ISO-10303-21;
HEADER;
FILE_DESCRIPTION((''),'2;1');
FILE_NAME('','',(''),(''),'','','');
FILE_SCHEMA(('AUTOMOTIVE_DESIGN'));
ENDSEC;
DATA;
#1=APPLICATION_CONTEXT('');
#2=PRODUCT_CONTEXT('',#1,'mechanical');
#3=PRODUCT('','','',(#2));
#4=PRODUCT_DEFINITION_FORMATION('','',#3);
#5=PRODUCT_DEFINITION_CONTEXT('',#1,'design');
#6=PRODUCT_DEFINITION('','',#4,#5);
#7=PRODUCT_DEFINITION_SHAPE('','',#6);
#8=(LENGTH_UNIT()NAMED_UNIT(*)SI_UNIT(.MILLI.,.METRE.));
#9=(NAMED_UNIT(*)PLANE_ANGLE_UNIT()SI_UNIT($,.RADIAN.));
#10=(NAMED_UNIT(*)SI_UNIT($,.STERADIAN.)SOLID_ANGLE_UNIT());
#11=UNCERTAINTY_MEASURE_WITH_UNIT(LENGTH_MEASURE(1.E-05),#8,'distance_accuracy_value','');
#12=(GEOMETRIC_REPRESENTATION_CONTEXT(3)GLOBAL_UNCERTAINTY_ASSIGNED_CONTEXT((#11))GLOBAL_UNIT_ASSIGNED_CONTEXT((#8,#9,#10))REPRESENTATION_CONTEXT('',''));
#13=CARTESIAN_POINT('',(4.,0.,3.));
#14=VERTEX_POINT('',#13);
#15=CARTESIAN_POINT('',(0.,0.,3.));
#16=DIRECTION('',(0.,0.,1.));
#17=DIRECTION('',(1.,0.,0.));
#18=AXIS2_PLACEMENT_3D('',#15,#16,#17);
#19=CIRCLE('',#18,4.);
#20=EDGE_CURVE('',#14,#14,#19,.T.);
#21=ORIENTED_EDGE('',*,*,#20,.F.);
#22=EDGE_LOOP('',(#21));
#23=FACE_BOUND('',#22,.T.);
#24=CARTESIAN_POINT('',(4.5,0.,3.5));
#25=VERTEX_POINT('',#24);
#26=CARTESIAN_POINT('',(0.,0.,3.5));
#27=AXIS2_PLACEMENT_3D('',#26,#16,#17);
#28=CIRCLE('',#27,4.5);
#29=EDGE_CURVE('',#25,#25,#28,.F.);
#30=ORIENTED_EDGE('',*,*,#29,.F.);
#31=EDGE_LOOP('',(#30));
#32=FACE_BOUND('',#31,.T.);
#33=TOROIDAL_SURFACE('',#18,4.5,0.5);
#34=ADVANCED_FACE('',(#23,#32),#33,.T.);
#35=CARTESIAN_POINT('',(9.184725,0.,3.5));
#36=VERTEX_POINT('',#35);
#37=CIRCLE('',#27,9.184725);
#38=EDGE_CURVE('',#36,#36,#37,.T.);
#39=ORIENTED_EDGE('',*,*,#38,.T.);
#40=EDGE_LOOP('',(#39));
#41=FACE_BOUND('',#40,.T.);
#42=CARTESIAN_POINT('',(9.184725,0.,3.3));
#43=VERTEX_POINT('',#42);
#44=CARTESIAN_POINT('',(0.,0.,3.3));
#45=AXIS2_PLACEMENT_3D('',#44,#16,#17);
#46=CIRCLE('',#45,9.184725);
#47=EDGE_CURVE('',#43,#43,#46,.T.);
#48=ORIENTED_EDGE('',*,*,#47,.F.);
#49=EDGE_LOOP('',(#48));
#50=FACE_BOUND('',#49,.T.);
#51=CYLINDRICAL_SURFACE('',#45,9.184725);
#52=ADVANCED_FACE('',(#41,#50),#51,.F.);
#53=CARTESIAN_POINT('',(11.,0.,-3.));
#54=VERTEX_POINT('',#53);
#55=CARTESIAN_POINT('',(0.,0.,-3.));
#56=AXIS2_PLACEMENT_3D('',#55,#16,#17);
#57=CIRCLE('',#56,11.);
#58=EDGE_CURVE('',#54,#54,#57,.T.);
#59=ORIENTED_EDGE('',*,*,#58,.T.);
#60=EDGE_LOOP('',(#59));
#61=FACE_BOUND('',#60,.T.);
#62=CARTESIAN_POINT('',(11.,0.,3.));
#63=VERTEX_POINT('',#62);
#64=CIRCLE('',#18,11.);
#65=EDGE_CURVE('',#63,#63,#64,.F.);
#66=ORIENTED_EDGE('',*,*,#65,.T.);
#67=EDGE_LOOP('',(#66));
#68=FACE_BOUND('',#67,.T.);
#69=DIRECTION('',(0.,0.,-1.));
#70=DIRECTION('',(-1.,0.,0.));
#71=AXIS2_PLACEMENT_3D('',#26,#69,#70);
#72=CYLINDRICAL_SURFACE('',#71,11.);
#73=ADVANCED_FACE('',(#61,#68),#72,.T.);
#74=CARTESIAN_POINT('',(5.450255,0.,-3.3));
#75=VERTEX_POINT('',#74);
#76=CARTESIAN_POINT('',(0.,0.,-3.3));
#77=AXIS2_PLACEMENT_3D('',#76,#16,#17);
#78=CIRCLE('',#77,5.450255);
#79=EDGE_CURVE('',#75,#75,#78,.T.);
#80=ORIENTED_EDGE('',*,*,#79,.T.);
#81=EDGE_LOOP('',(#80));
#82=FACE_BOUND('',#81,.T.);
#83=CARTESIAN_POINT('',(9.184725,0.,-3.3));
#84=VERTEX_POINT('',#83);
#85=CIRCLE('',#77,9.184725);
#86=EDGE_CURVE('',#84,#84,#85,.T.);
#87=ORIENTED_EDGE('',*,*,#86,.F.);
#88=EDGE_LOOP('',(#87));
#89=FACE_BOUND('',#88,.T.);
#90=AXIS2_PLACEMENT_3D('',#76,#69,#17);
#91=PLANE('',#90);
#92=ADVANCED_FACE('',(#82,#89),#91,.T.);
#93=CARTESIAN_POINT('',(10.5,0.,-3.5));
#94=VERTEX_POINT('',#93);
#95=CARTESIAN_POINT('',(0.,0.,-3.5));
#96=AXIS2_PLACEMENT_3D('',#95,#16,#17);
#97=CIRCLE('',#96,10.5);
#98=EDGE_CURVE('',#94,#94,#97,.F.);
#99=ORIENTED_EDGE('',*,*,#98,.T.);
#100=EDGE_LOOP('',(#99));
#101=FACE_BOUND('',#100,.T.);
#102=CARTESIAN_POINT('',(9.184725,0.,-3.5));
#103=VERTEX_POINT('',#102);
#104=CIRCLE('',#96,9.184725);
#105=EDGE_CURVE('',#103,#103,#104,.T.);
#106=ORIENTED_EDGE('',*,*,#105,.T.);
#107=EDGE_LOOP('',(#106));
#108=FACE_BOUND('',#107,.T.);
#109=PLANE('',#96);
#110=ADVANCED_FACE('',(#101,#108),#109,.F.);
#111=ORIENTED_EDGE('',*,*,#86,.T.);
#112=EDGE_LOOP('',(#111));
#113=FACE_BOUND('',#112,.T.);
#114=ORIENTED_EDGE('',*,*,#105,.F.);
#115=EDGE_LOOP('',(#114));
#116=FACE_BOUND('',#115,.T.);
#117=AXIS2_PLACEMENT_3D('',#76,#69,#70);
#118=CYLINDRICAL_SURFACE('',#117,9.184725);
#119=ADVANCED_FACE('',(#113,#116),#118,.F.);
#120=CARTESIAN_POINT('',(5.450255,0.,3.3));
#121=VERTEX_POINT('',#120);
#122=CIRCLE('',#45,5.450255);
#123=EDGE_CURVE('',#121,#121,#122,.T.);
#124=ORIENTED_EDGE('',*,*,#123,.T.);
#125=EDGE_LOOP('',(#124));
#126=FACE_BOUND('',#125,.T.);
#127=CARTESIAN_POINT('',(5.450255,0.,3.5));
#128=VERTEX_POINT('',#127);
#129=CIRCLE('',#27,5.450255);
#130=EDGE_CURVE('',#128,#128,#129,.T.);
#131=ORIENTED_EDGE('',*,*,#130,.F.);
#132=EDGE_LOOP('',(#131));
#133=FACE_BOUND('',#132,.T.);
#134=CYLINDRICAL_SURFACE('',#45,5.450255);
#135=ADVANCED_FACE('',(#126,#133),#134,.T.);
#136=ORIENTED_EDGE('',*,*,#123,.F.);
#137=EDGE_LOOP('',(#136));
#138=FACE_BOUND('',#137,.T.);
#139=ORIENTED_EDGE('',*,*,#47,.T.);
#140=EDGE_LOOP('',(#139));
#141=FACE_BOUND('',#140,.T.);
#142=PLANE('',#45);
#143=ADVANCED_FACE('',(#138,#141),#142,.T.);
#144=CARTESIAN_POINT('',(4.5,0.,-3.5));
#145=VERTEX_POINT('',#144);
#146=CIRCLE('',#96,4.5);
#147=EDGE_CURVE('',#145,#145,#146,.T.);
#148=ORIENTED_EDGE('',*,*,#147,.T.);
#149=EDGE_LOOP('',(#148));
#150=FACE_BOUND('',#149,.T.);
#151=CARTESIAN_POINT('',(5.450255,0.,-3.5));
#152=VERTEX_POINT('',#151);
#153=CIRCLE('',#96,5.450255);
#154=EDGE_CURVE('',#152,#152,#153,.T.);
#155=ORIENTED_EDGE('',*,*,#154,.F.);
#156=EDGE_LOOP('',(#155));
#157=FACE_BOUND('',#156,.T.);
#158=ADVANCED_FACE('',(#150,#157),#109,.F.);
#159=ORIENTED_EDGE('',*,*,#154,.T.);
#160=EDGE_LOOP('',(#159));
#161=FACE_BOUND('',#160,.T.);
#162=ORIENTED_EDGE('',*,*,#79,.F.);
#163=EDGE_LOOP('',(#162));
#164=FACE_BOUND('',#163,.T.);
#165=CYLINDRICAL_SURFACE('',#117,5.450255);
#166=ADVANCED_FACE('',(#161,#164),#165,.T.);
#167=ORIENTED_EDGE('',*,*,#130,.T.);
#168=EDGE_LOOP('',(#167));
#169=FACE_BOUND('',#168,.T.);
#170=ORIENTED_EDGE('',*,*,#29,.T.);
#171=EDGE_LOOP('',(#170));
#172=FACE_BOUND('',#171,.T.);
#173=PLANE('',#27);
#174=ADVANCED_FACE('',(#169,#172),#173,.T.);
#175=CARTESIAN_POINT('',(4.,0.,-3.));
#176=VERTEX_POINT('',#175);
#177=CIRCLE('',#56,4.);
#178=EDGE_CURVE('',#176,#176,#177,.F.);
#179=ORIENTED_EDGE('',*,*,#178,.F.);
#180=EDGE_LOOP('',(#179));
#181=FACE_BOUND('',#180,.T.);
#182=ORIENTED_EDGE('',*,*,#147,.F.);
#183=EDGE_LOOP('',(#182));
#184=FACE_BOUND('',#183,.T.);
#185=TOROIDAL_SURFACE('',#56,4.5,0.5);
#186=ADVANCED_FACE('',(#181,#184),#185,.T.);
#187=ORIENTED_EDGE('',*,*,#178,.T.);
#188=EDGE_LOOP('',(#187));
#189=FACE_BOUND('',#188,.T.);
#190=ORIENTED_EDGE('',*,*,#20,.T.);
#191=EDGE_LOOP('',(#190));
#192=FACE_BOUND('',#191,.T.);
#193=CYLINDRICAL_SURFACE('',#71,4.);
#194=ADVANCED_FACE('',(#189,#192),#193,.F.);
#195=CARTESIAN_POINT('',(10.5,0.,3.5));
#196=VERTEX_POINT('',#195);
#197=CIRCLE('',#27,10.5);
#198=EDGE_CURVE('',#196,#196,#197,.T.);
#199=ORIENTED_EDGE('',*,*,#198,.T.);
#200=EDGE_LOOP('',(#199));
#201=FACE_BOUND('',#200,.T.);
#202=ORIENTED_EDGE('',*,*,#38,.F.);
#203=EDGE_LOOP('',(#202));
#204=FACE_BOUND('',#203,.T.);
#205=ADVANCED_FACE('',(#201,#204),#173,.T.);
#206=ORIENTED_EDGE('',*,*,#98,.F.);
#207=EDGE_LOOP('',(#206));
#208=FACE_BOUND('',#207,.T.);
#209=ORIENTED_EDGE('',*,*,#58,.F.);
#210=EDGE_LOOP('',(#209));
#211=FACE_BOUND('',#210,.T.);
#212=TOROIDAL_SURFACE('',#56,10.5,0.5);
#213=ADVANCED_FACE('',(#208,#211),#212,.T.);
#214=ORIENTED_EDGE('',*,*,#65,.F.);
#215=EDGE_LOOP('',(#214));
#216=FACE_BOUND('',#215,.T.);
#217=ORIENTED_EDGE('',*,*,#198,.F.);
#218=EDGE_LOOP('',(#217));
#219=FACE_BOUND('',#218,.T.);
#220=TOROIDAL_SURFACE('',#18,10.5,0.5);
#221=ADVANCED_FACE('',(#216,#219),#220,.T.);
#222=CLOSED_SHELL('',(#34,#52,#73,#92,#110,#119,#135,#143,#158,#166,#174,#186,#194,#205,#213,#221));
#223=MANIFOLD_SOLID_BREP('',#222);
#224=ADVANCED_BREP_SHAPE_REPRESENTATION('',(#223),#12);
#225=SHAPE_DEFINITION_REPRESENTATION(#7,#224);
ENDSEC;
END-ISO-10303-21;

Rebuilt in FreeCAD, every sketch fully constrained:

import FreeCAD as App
import Part
import Sketcher
from FreeCAD import Vector
Q = App.Units.Quantity


def edges_at(feature, points):
    """Names of the edges that pass closest to the given points."""
    edges = feature.Shape.Edges
    near = lambda p: min(range(len(edges)), key=lambda i: edges[i].distToShape(Part.Vertex(*p))[0])
    return sorted({f"Edge{near(p) + 1}" for p in points})

doc = App.newDocument("Part")
params = doc.addObject("Spreadsheet::Sheet", "Params")
for row, (alias, value) in enumerate([
    ("sketch1_diameter", "22 mm"),
    ("sketch1_diameter2", "8 mm"),
    ("pad1_length", "7 mm"),
    ("pocket1_length", "0.2 mm"),
    ("fillet_radius", "0.5 mm"),
], start=1):
    params.set(f"A{row}", alias)
    params.set(f"B{row}", "=" + value)
    params.setAlias(f"B{row}", alias)

body = doc.addObject("PartDesign::Body", "Body")

# Sketch on XY plane
sketch1 = body.newObject("Sketcher::SketchObject", "Sketch")
sketch1.AttachmentSupport = (doc.getObject("XY_Plane"), [""])
sketch1.MapMode = "FlatFace"
sketch1.addGeometry(Part.Circle(Vector(0, 0, 0), Vector(0, 0, 1), 11), False)
sketch1.addGeometry(Part.Circle(Vector(0, 0, 0), Vector(0, 0, 1), 4), False)
sketch1.addConstraint(Sketcher.Constraint("Coincident", 0, 3, -1, 1))
sketch1.addConstraint(Sketcher.Constraint("Coincident", 1, 3, -1, 1))
sketch1.addConstraint(Sketcher.Constraint("Diameter", 0, Q("22 mm")))
sketch1.addConstraint(Sketcher.Constraint("Diameter", 1, Q("8 mm")))
sketch1.setExpression("Constraints[2]", "Params.sketch1_diameter")
sketch1.setExpression("Constraints[3]", "Params.sketch1_diameter2")
pad1 = body.newObject("PartDesign::Pad", "Pad")
pad1.Profile = sketch1
pad1.setExpression("Length", "Params.pad1_length")
pad1.Midplane = True

# Sketch on XY plane
sketch2 = body.newObject("Sketcher::SketchObject", "Sketch001")
sketch2.AttachmentSupport = (doc.getObject("XY_Plane"), [""])
sketch2.MapMode = "FlatFace"
sketch2.AttachmentOffset = App.Placement(Vector(0, 0, 3.5), App.Rotation())
sketch2.addGeometry(Part.Circle(Vector(0, 0, 0), Vector(0, 0, 1), 9), False)
sketch2.addGeometry(Part.Circle(Vector(0, 0, 0), Vector(0, 0, 1), 5), False)
sketch2.addConstraint(Sketcher.Constraint("Coincident", 0, 3, -1, 1))
sketch2.addConstraint(Sketcher.Constraint("Coincident", 1, 3, -1, 1))
sketch2.addConstraint(Sketcher.Constraint("Diameter", 0, Q("18.369449 mm")))
sketch2.addConstraint(Sketcher.Constraint("Diameter", 1, Q("10.90051 mm")))
pocket1 = body.newObject("PartDesign::Pocket", "Pocket")
pocket1.Profile = sketch2
pocket1.setExpression("Length", "Params.pocket1_length")
doc.recompute()

mirrored = body.newObject("PartDesign::Mirrored", "Mirrored")
mirrored.Originals = [pocket1]
mirrored.MirrorPlane = (doc.getObject("XY_Plane"), [""])
body.Tip = mirrored
doc.recompute()

fillet = body.newObject("PartDesign::Fillet", "Fillet")
fillet.Base = (mirrored, edges_at(mirrored, [
    (-11, 0, -3.5),
    (-11, 0, 3.5),
    (-4, 0, -3.5),
    (-4, 0, 3.5),
]))
fillet.setExpression("Radius", "Params.fillet_radius")

doc.recompute()
